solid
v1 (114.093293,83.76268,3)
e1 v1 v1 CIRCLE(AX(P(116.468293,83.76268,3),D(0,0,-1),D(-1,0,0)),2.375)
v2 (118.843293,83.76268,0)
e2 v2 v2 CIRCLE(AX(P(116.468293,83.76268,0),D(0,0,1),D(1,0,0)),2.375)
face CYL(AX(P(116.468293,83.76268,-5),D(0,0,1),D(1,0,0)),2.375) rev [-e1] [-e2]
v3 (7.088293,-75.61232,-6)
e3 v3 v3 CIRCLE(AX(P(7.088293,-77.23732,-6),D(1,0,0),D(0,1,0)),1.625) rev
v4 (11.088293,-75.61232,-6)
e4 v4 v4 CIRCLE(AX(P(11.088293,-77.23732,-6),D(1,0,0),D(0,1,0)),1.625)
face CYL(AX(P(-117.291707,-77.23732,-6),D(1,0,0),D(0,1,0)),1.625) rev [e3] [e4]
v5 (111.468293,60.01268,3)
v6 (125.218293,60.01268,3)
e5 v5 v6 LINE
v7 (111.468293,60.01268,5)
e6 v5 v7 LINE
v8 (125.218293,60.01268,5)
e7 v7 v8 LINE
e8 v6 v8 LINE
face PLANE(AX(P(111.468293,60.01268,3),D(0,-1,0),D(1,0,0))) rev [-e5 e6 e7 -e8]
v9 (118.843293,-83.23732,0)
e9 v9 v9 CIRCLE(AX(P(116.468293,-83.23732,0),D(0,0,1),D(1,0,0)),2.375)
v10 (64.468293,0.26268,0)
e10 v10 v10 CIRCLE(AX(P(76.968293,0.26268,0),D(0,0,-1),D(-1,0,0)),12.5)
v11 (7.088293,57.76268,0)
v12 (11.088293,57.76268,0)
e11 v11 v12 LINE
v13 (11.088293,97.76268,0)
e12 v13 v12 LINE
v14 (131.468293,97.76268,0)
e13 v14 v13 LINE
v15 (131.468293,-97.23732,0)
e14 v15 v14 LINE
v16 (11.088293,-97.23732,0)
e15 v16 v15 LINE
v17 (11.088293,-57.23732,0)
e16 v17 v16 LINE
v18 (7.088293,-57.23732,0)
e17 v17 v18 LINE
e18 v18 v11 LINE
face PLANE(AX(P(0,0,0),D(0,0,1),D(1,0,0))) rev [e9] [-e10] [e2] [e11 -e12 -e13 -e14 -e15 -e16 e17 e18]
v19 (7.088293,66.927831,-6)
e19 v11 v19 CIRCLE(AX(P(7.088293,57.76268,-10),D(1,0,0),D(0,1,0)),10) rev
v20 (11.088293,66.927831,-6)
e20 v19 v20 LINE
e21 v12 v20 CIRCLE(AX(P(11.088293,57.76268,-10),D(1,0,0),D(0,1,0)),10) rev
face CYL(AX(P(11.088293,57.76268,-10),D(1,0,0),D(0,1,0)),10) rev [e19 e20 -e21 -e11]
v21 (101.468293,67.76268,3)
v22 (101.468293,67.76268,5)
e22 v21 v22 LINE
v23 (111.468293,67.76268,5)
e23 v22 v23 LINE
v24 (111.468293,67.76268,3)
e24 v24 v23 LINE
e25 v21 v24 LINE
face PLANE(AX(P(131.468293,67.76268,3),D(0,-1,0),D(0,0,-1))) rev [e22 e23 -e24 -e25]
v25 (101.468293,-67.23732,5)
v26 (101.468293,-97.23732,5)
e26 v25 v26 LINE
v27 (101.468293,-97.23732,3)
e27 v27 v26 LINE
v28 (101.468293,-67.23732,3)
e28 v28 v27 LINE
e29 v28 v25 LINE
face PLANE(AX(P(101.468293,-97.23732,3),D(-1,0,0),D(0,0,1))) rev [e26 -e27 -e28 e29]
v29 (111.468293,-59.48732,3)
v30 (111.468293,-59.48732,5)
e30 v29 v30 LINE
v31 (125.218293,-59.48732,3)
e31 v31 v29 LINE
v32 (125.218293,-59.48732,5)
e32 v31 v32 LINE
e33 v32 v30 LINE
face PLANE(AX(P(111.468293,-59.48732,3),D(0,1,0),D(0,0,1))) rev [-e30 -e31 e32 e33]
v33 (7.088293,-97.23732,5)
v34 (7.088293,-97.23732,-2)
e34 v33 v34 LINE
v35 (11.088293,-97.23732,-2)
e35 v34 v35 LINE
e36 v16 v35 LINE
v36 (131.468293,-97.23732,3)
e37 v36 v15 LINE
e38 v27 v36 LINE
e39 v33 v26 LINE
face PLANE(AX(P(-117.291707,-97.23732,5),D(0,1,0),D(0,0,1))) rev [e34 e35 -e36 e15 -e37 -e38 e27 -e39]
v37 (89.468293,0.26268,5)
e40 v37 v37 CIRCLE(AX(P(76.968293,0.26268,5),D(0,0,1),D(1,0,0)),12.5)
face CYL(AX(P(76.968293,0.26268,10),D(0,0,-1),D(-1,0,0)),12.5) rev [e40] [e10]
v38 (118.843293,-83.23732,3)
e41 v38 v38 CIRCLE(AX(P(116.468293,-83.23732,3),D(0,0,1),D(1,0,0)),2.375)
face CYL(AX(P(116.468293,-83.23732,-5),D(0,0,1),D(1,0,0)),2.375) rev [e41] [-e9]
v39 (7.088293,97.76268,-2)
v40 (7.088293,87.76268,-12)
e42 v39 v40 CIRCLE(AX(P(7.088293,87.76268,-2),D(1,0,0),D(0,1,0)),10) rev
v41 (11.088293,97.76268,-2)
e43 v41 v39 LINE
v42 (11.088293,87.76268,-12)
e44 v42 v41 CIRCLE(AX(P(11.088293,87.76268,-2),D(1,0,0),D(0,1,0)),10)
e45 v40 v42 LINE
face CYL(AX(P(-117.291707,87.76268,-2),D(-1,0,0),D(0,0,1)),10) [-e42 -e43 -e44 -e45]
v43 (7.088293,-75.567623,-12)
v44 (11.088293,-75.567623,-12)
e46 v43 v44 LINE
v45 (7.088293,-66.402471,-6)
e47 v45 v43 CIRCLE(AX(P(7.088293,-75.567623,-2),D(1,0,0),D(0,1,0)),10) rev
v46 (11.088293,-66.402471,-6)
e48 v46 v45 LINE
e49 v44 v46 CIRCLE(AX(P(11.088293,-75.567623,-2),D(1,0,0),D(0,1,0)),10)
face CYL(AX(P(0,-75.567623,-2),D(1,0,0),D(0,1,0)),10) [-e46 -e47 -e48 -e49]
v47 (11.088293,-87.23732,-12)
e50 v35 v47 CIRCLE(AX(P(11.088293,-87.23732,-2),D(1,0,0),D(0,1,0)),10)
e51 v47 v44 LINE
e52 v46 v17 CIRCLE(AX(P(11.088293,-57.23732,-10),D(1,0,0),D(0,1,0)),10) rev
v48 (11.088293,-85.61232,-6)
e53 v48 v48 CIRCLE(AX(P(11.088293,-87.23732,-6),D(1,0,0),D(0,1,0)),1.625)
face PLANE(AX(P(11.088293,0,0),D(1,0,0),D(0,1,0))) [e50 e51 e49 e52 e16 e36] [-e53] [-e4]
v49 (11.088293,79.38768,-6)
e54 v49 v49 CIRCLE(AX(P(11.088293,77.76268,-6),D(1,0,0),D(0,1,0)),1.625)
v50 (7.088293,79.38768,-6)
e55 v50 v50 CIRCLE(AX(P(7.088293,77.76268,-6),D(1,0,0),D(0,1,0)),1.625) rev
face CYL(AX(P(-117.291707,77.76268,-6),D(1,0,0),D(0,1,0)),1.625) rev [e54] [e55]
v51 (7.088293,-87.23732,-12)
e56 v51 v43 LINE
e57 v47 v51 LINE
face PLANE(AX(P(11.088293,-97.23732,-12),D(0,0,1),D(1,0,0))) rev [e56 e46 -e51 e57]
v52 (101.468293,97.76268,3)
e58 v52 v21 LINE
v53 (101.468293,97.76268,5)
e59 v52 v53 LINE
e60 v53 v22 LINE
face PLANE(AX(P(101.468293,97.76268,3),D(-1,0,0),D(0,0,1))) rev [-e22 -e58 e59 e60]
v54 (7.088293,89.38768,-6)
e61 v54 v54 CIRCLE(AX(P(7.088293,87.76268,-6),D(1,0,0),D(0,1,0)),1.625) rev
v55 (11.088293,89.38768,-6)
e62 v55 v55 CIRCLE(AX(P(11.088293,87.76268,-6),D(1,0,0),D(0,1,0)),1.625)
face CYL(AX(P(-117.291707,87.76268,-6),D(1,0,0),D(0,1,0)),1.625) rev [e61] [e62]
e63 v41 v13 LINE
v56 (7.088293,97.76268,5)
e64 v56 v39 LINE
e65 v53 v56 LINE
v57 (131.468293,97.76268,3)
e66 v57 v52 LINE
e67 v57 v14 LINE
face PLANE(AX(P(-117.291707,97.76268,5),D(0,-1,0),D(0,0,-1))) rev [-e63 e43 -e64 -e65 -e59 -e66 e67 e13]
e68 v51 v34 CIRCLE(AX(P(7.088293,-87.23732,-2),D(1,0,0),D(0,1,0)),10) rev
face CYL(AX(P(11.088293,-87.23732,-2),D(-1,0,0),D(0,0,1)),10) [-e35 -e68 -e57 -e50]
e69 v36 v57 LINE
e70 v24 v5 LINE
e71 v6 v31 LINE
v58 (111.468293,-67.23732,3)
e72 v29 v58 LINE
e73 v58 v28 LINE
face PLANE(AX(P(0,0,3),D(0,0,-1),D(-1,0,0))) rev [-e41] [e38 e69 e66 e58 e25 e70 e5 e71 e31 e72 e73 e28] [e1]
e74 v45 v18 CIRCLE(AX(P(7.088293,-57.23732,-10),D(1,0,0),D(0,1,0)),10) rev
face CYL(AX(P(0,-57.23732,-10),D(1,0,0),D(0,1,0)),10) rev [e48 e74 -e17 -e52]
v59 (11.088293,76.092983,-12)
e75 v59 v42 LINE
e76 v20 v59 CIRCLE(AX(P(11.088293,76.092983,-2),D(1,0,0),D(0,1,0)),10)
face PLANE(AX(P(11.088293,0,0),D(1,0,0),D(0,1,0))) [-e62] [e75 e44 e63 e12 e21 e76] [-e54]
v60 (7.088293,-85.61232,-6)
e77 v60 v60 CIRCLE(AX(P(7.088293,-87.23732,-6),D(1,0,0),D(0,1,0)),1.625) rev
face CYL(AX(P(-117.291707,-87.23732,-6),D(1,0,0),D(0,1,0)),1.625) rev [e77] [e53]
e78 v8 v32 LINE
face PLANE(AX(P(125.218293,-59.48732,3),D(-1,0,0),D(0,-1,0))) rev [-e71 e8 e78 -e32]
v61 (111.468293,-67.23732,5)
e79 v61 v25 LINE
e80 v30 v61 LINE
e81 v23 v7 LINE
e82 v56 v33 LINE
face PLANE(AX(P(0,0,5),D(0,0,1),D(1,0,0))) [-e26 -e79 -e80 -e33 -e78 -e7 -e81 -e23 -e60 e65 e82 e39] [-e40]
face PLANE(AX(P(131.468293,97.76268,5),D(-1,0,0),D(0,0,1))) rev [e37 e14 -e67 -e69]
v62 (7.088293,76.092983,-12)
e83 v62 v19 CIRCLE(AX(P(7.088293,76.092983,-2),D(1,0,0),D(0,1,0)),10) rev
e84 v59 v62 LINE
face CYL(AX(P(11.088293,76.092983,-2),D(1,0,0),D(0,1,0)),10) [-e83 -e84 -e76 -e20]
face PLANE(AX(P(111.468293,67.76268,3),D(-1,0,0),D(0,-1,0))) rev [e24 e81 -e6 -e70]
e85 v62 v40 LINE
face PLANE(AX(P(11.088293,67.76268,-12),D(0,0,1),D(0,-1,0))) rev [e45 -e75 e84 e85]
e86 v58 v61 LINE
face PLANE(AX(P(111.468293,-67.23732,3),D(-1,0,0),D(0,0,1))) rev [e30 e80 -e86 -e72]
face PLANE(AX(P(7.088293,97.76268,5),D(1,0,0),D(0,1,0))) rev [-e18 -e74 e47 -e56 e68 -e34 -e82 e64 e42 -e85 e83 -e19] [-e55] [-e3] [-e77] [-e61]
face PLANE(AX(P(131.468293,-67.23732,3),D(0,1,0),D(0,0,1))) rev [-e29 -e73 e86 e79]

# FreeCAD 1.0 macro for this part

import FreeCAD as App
import Part
import Sketcher

V = App.Vector


def edges_at(feature, points):
    """Names of the edges that pass closest to the given points."""
    edges = feature.Shape.Edges
    near = lambda p: min(range(len(edges)), key=lambda i: edges[i].distToShape(Part.Vertex(*p))[0])
    return sorted({f"Edge{near(p) + 1}" for p in points})

doc = App.newDocument("Part")
params = doc.addObject("Spreadsheet::Sheet", "Params")
for row, (alias, value) in enumerate([
    ("sketch1_height", "195 mm"),
    ("sketch1_width", "248.76 mm"),
    ("pad1_length", "5 mm"),
    ("sketch2_width", "48 mm"),
    ("sketch2_width2", "30 mm"),
    ("pocket1_length", "2 mm"),
    ("sketch3_diameter", "4.75 mm"),
    ("pocket2_length", "10 mm"),
    ("sketch4_diameter", "80 mm"),
    ("pad2_length", "206 mm"),
    ("sketch5_diameter", "25 mm"),
    ("pocket3_length", "10 mm"),
    ("sketch6_width", "30 mm"),
    ("sketch6_height", "12 mm"),
    ("pad3_length", "8 mm"),
    ("fillet_radius", "10 mm"),
    ("fillet2_radius", "10 mm"),
    ("fillet3_radius", "10 mm"),
    ("sketch7_diameter", "3.25 mm"),
    ("sketch8_width", "20 mm"),
    ("sketch8_height", "135 mm"),
    ("sketch8_height2", "119.5 mm"),
    ("sketch8_width2", "13.75 mm"),
    ("pocket5_length", "2 mm"),
    ("sketch9_diameter", "3.5 mm"),
    ("pocket6_length", "20 mm"),
    ("sketch10_height", "195 mm"),
    ("sketch10_width", "124.38 mm"),
], start=1):
    params.set(f"A{row}", alias)
    params.set(f"B{row}", "=" + value)
    params.setAlias(f"B{row}", alias)

body = doc.addObject("PartDesign::Body", "Body")

# Sketch on XY plane
sketch1 = body.newObject("Sketcher::SketchObject", "Sketch")
sketch1.AttachmentSupport = (doc.getObject("XY_Plane"), [""])
sketch1.MapMode = "FlatFace"
sketch1.addGeometry(Part.LineSegment(V(-117.291707, 97.76268, 0), V(-117.291707, -97.23732, 0)), False)
sketch1.addGeometry(Part.LineSegment(V(-117.291707, -97.23732, 0), V(131.468293, -97.23732, 0)), False)
sketch1.addGeometry(Part.LineSegment(V(131.468293, -97.23732, 0), V(131.468293, 97.76268, 0)), False)
sketch1.addGeometry(Part.LineSegment(V(131.468293, 97.76268, 0), V(-117.291707, 97.76268, 0)), False)
sketch1.addConstraint(Sketcher.Constraint("Coincident", 0, 2, 1, 1))
sketch1.addConstraint(Sketcher.Constraint("Coincident", 1, 2, 2, 1))
sketch1.addConstraint(Sketcher.Constraint("Coincident", 2, 2, 3, 1))
sketch1.addConstraint(Sketcher.Constraint("Coincident", 3, 2, 0, 1))
sketch1.addConstraint(Sketcher.Constraint("Vertical", 0))
sketch1.addConstraint(Sketcher.Constraint("Horizontal", 1))
sketch1.addConstraint(Sketcher.Constraint("Vertical", 2))
sketch1.addConstraint(Sketcher.Constraint("Horizontal", 3))
sketch1.addConstraint(Sketcher.Constraint("DistanceY", 0, 2, 0, 1, 195.0))
sketch1.addConstraint(Sketcher.Constraint("DistanceX", 1, 1, 1, 2, 248.76))
sketch1.addConstraint(Sketcher.Constraint("DistanceY", 0, 2, -1, 1, 97.23732))
sketch1.addConstraint(Sketcher.Constraint("DistanceX", 0, 2, -1, 1, 117.291707))
sketch1.setExpression("Constraints[8]", "Params.sketch1_height")
sketch1.setExpression("Constraints[9]", "Params.sketch1_width")
pad1 = body.newObject("PartDesign::Pad", "Pad")
pad1.Profile = sketch1
pad1.setExpression("Length", "Params.pad1_length")

# Sketch on XY plane
sketch2 = body.newObject("Sketcher::SketchObject", "Sketch001")
sketch2.AttachmentSupport = (doc.getObject("XY_Plane"), [""])
sketch2.MapMode = "FlatFace"
sketch2.AttachmentOffset = App.Placement(V(0, 0, 5), App.Rotation())
sketch2.addGeometry(Part.LineSegment(V(-117.291707, -67.23732, 0), V(-117.291707, -97.23732, 0)), False)
sketch2.addGeometry(Part.LineSegment(V(-117.291707, -97.23732, 0), V(-69.291707, -97.23732, 0)), False)
sketch2.addGeometry(Part.LineSegment(V(-69.291707, -97.23732, 0), V(-69.291707, -67.23732, 0)), False)
sketch2.addGeometry(Part.LineSegment(V(-69.291707, -67.23732, 0), V(-117.291707, -67.23732, 0)), False)
sketch2.addGeometry(Part.LineSegment(V(101.468293, 97.76268, 0), V(101.468293, 67.76268, 0)), False)
sketch2.addGeometry(Part.LineSegment(V(101.468293, 67.76268, 0), V(131.468293, 67.76268, 0)), False)
sketch2.addGeometry(Part.LineSegment(V(131.468293, 67.76268, 0), V(131.468293, 97.76268, 0)), False)
sketch2.addGeometry(Part.LineSegment(V(131.468293, 97.76268, 0), V(101.468293, 97.76268, 0)), False)
sketch2.addGeometry(Part.LineSegment(V(101.468293, -67.23732, 0), V(101.468293, -97.23732, 0)), False)
sketch2.addGeometry(Part.LineSegment(V(101.468293, -97.23732, 0), V(131.468293, -97.23732, 0)), False)
sketch2.addGeometry(Part.LineSegment(V(131.468293, -97.23732, 0), V(131.468293, -67.23732, 0)), False)
sketch2.addGeometry(Part.LineSegment(V(131.468293, -67.23732, 0), V(101.468293, -67.23732, 0)), False)
sketch2.addGeometry(Part.LineSegment(V(-117.291707, 97.76268, 0), V(-117.291707, 67.76268, 0)), False)
sketch2.addGeometry(Part.LineSegment(V(-117.291707, 67.76268, 0), V(-69.291707, 67.76268, 0)), False)
sketch2.addGeometry(Part.LineSegment(V(-69.291707, 67.76268, 0), V(-69.291707, 97.76268, 0)), False)
sketch2.addGeometry(Part.LineSegment(V(-69.291707, 97.76268, 0), V(-117.291707, 97.76268, 0)), False)
sketch2.addConstraint(Sketcher.Constraint("Coincident", 0, 2, 1, 1))
sketch2.addConstraint(Sketcher.Constraint("Coincident", 1, 2, 2, 1))
sketch2.addConstraint(Sketcher.Constraint("Coincident", 2, 2, 3, 1))
sketch2.addConstraint(Sketcher.Constraint("Coincident", 3, 2, 0, 1))
sketch2.addConstraint(Sketcher.Constraint("Coincident", 4, 2, 5, 1))
sketch2.addConstraint(Sketcher.Constraint("Coincident", 5, 2, 6, 1))
sketch2.addConstraint(Sketcher.Constraint("Coincident", 6, 2, 7, 1))
sketch2.addConstraint(Sketcher.Constraint("Coincident", 7, 2, 4, 1))
sketch2.addConstraint(Sketcher.Constraint("Coincident", 8, 2, 9, 1))
sketch2.addConstraint(Sketcher.Constraint("Coincident", 9, 2, 10, 1))
sketch2.addConstraint(Sketcher.Constraint("Coincident", 10, 2, 11, 1))
sketch2.addConstraint(Sketcher.Constraint("Coincident", 11, 2, 8, 1))
sketch2.addConstraint(Sketcher.Constraint("Coincident", 12, 2, 13, 1))
sketch2.addConstraint(Sketcher.Constraint("Coincident", 13, 2, 14, 1))
sketch2.addConstraint(Sketcher.Constraint("Coincident", 14, 2, 15, 1))
sketch2.addConstraint(Sketcher.Constraint("Coincident", 15, 2, 12, 1))
sketch2.addConstraint(Sketcher.Constraint("Vertical", 0))
sketch2.addConstraint(Sketcher.Constraint("Horizontal", 1))
sketch2.addConstraint(Sketcher.Constraint("Vertical", 2))
sketch2.addConstraint(Sketcher.Constraint("Horizontal", 3))
sketch2.addConstraint(Sketcher.Constraint("Vertical", 4))
sketch2.addConstraint(Sketcher.Constraint("Horizontal", 5))
sketch2.addConstraint(Sketcher.Constraint("Vertical", 6))
sketch2.addConstraint(Sketcher.Constraint("Horizontal", 7))
sketch2.addConstraint(Sketcher.Constraint("Vertical", 8))
sketch2.addConstraint(Sketcher.Constraint("Horizontal", 9))
sketch2.addConstraint(Sketcher.Constraint("Vertical", 10))
sketch2.addConstraint(Sketcher.Constraint("Horizontal", 11))
sketch2.addConstraint(Sketcher.Constraint("Vertical", 12))
sketch2.addConstraint(Sketcher.Constraint("Horizontal", 13))
sketch2.addConstraint(Sketcher.Constraint("Vertical", 14))
sketch2.addConstraint(Sketcher.Constraint("Horizontal", 15))
sketch2.addConstraint(Sketcher.Constraint("Horizontal", 1, 2, 8, 2))
sketch2.addConstraint(Sketcher.Constraint("Horizontal", 3, 2, 10, 2))
sketch2.addConstraint(Sketcher.Constraint("Horizontal", 5, 2, 12, 2))
sketch2.addConstraint(Sketcher.Constraint("Horizontal", 7, 2, 14, 2))
sketch2.addConstraint(Sketcher.Constraint("Vertical", 7, 2, 8, 2))
sketch2.addConstraint(Sketcher.Constraint("Vertical", 6, 2, 9, 2))
sketch2.addConstraint(Sketcher.Constraint("Vertical", 3, 2, 12, 2))
sketch2.addConstraint(Sketcher.Constraint("Vertical", 2, 2, 13, 2))
sketch2.addConstraint(Sketcher.Constraint("Equal", 11, 0))
sketch2.addConstraint(Sketcher.Constraint("Equal", 2, 4))
sketch2.addConstraint(Sketcher.Constraint("DistanceX", 1, 1, 1, 2, 48.0))
sketch2.addConstraint(Sketcher.Constraint("DistanceX", 5, 1, 5, 2, 30.0))
sketch2.addConstraint(Sketcher.Constraint("DistanceY", 2, 2, 4, 2, 135.0))
sketch2.addConstraint(Sketcher.Constraint("DistanceX", 2, 2, 4, 2, 170.76))
sketch2.addConstraint(Sketcher.Constraint("DistanceY", 0, 2, -1, 1, 97.23732))
sketch2.addConstraint(Sketcher.Constraint("DistanceX", 0, 2, -1, 1, 117.291707))
sketch2.setExpression("Constraints[42]", "Params.sketch2_width")
sketch2.setExpression("Constraints[43]", "Params.sketch2_width2")
pocket1 = body.newObject("PartDesign::Pocket", "Pocket")
pocket1.Profile = sketch2
pocket1.setExpression("Length", "Params.pocket1_length")

# Sketch on XY plane
sketch3 = body.newObject("Sketcher::SketchObject", "Sketch002")
sketch3.AttachmentSupport = (doc.getObject("XY_Plane"), [""])
sketch3.MapMode = "FlatFace"
sketch3.AttachmentOffset = App.Placement(V(0, 0, 5), App.Rotation())
sketch3.addGeometry(Part.Circle(V(-93.291707, 83.76268, 0), V(0, 0, 1), 2.375), False)
sketch3.addGeometry(Part.Circle(V(-93.291707, -83.23732, 0), V(0, 0, 1), 2.375), False)
sketch3.addGeometry(Part.Circle(V(116.468293, 83.76268, 0), V(0, 0, 1), 2.375), False)
sketch3.addGeometry(Part.Circle(V(116.468293, -83.23732, 0), V(0, 0, 1), 2.375), False)
sketch3.addConstraint(Sketcher.Constraint("Equal", 0, 1))
sketch3.addConstraint(Sketcher.Constraint("Equal", 1, 2))
sketch3.addConstraint(Sketcher.Constraint("Equal", 2, 3))
sketch3.addConstraint(Sketcher.Constraint("Horizontal", 0, 3, 2, 3))
sketch3.addConstraint(Sketcher.Constraint("Horizontal", 1, 3, 3, 3))
sketch3.addConstraint(Sketcher.Constraint("Vertical", 0, 3, 1, 3))
sketch3.addConstraint(Sketcher.Constraint("Vertical", 2, 3, 3, 3))
sketch3.addConstraint(Sketcher.Constraint("Diameter", 0, 4.75))
sketch3.addConstraint(Sketcher.Constraint("DistanceY", 1, 3, 0, 3, 167.0))
sketch3.addConstraint(Sketcher.Constraint("DistanceX", 0, 3, 2, 3, 209.76))
sketch3.addConstraint(Sketcher.Constraint("DistanceY", -1, 1, 0, 3, 83.76268))
sketch3.addConstraint(Sketcher.Constraint("DistanceX", 0, 3, -1, 1, 93.291707))
sketch3.setExpression("Constraints[7]", "Params.sketch3_diameter")
pocket2 = body.newObject("PartDesign::Pocket", "Pocket001")
pocket2.Profile = sketch3
pocket2.setExpression("Length", "Params.pocket2_length")

# Sketch on XY plane
sketch4 = body.newObject("Sketcher::SketchObject", "Sketch003")
sketch4.AttachmentSupport = (doc.getObject("XY_Plane"), [""])
sketch4.MapMode = "FlatFace"
sketch4.addGeometry(Part.Circle(V(-55.101707, 0.26268, 0), V(0, 0, 1), 40), False)
sketch4.addConstraint(Sketcher.Constraint("Diameter", 0, 80.0))
sketch4.addConstraint(Sketcher.Constraint("DistanceY", -1, 1, 0, 3, 0.26268))
sketch4.addConstraint(Sketcher.Constraint("DistanceX", 0, 3, -1, 1, 55.101707))
sketch4.setExpression("Constraints[0]", "Params.sketch4_diameter")
pad2 = body.newObject("PartDesign::Pad", "Pad001")
pad2.Profile = sketch4
pad2.setExpression("Length", "Params.pad2_length")
pad2.Reversed = True

# Sketch on XY plane
sketch5 = body.newObject("Sketcher::SketchObject", "Sketch004")
sketch5.AttachmentSupport = (doc.getObject("XY_Plane"), [""])
sketch5.MapMode = "FlatFace"
sketch5.addGeometry(Part.Circle(V(76.968293, 0.26268, 0), V(0, 0, 1), 12.5), False)
sketch5.addConstraint(Sketcher.Constraint("Diameter", 0, 25.0))
sketch5.addConstraint(Sketcher.Constraint("DistanceY", -1, 1, 0, 3, 0.26268))
sketch5.addConstraint(Sketcher.Constraint("DistanceX", -1, 1, 0, 3, 76.968293))
sketch5.setExpression("Constraints[0]", "Params.sketch5_diameter")
pocket3 = body.newObject("PartDesign::Pocket", "Pocket002")
pocket3.Profile = sketch5
pocket3.setExpression("Length", "Params.pocket3_length")
pocket3.Reversed = True

# Sketch on YZ plane
sketch6 = body.newObject("Sketcher::SketchObject", "Sketch005")
sketch6.AttachmentSupport = (doc.getObject("YZ_Plane"), [""])
sketch6.MapMode = "FlatFace"
sketch6.AttachmentOffset = App.Placement(V(0, 0, 7.088293), App.Rotation())
sketch6.addGeometry(Part.LineSegment(V(97.76268, 0, 0), V(67.76268, 0, 0)), False)
sketch6.addGeometry(Part.LineSegment(V(67.76268, 0, 0), V(67.76268, -12, 0)), False)
sketch6.addGeometry(Part.LineSegment(V(67.76268, -12, 0), V(97.76268, -12, 0)), False)
sketch6.addGeometry(Part.LineSegment(V(97.76268, -12, 0), V(97.76268, 0, 0)), False)
sketch6.addGeometry(Part.LineSegment(V(-67.23732, 0, 0), V(-97.23732, 0, 0)), False)
sketch6.addGeometry(Part.LineSegment(V(-97.23732, 0, 0), V(-97.23732, -12, 0)), False)
sketch6.addGeometry(Part.LineSegment(V(-97.23732, -12, 0), V(-67.23732, -12, 0)), False)
sketch6.addGeometry(Part.LineSegment(V(-67.23732, -12, 0), V(-67.23732, 0, 0)), False)
sketch6.addConstraint(Sketcher.Constraint("Coincident", 0, 2, 1, 1))
sketch6.addConstraint(Sketcher.Constraint("Coincident", 1, 2, 2, 1))
sketch6.addConstraint(Sketcher.Constraint("Coincident", 2, 2, 3, 1))
sketch6.addConstraint(Sketcher.Constraint("Coincident", 3, 2, 0, 1))
sketch6.addConstraint(Sketcher.Constraint("Coincident", 4, 2, 5, 1))
sketch6.addConstraint(Sketcher.Constraint("Coincident", 5, 2, 6, 1))
sketch6.addConstraint(Sketcher.Constraint("Coincident", 6, 2, 7, 1))
sketch6.addConstraint(Sketcher.Constraint("Coincident", 7, 2, 4, 1))
sketch6.addConstraint(Sketcher.Constraint("Horizontal", 0))
sketch6.addConstraint(Sketcher.Constraint("Vertical", 1))
sketch6.addConstraint(Sketcher.Constraint("Horizontal", 2))
sketch6.addConstraint(Sketcher.Constraint("Vertical", 3))
sketch6.addConstraint(Sketcher.Constraint("Horizontal", 4))
sketch6.addConstraint(Sketcher.Constraint("Vertical", 5))
sketch6.addConstraint(Sketcher.Constraint("Horizontal", 6))
sketch6.addConstraint(Sketcher.Constraint("Vertical", 7))
sketch6.addConstraint(Sketcher.Constraint("PointOnObject", 0, 2, -1))
sketch6.addConstraint(Sketcher.Constraint("PointOnObject", 4, 2, -1))
sketch6.addConstraint(Sketcher.Constraint("Horizontal", 2, 2, 5, 2))
sketch6.addConstraint(Sketcher.Constraint("Equal", 2, 4))
sketch6.addConstraint(Sketcher.Constraint("DistanceX", 0, 2, 0, 1, 30.0))
sketch6.addConstraint(Sketcher.Constraint("DistanceY", 1, 2, 1, 1, 12.0))
sketch6.addConstraint(Sketcher.Constraint("DistanceX", 4, 2, 0, 2, 165.0))
sketch6.addConstraint(Sketcher.Constraint("DistanceX", -1, 1, 0, 2, 67.76268))
sketch6.setExpression("Constraints[20]", "Params.sketch6_width")
sketch6.setExpression("Constraints[21]", "Params.sketch6_height")
pad3 = body.newObject("PartDesign::Pad", "Pad002")
pad3.Profile = sketch6
pad3.setExpression("Length", "Params.pad3_length")
pad3.Midplane = True
doc.recompute()

fillet = body.newObject("PartDesign::Fillet", "Fillet")
fillet.Base = (pad3, edges_at(pad3, [(7.088, 67.763, 0), (7.088, -67.237, 0)]))
fillet.setExpression("Radius", "Params.fillet_radius")
doc.recompute()

fillet2 = body.newObject("PartDesign::Fillet", "Fillet001")
fillet2.Base = (fillet, edges_at(fillet, [(7.088, 67.763, -12), (7.088, -67.237, -12)]))
fillet2.setExpression("Radius", "Params.fillet2_radius")
doc.recompute()

fillet3 = body.newObject("PartDesign::Fillet", "Fillet002")
fillet3.Base = (fillet2, edges_at(fillet2, [(7.088, 97.763, -12), (7.088, -97.237, -12)]))
fillet3.setExpression("Radius", "Params.fillet3_radius")

# Sketch on YZ plane
sketch7 = body.newObject("Sketcher::SketchObject", "Sketch006")
sketch7.AttachmentSupport = (doc.getObject("YZ_Plane"), [""])
sketch7.MapMode = "FlatFace"
sketch7.AttachmentOffset = App.Placement(V(0, 0, 11.088293), App.Rotation())
sketch7.addGeometry(Part.Circle(V(87.76268, -6, 0), V(0, 0, 1), 1.625), False)
sketch7.addGeometry(Part.Circle(V(77.76268, -6, 0), V(0, 0, 1), 1.625), False)
sketch7.addGeometry(Part.Circle(V(-77.23732, -6, 0), V(0, 0, 1), 1.625), False)
sketch7.addGeometry(Part.Circle(V(-87.23732, -6, 0), V(0, 0, 1), 1.625), False)
sketch7.addConstraint(Sketcher.Constraint("Equal", 0, 1))
sketch7.addConstraint(Sketcher.Constraint("Equal", 1, 2))
sketch7.addConstraint(Sketcher.Constraint("Equal", 2, 3))
sketch7.addConstraint(Sketcher.Constraint("Horizontal", 0, 3, 1, 3))
sketch7.addConstraint(Sketcher.Constraint("Horizontal", 1, 3, 2, 3))
sketch7.addConstraint(Sketcher.Constraint("Horizontal", 2, 3, 3, 3))
sketch7.addConstraint(Sketcher.Constraint("Diameter", 0, 3.25))
sketch7.addConstraint(Sketcher.Constraint("DistanceY", 0, 3, -1, 1, 6.0))
sketch7.addConstraint(Sketcher.Constraint("DistanceX", 1, 3, 0, 3, 10.0))
sketch7.addConstraint(Sketcher.Constraint("DistanceX", 2, 3, 1, 3, 155.0))
sketch7.addConstraint(Sketcher.Constraint("DistanceX", 3, 3, 2, 3, 10.0))
sketch7.addConstraint(Sketcher.Constraint("DistanceX", -1, 1, 0, 3, 87.76268))
sketch7.setExpression("Constraints[6]", "Params.sketch7_diameter")
pocket4 = body.newObject("PartDesign::Pocket", "Pocket003")
pocket4.Profile = sketch7
pocket4.Type = "ThroughAll"
pocket4.Midplane = True

# Sketch on XY plane
sketch8 = body.newObject("Sketcher::SketchObject", "Sketch007")
sketch8.AttachmentSupport = (doc.getObject("XY_Plane"), [""])
sketch8.MapMode = "FlatFace"
sketch8.AttachmentOffset = App.Placement(V(0, 0, 5), App.Rotation())
sketch8.addGeometry(Part.LineSegment(V(131.468293, 67.76268, 0), V(111.468293, 67.76268, 0)), False)
sketch8.addGeometry(Part.LineSegment(V(111.468293, 67.76268, 0), V(111.468293, 60.01268, 0)), False)
sketch8.addGeometry(Part.LineSegment(V(111.468293, 60.01268, 0), V(125.218293, 60.01268, 0)), False)
sketch8.addGeometry(Part.LineSegment(V(125.218293, 60.01268, 0), V(125.218293, -59.48732, 0)), False)
sketch8.addGeometry(Part.LineSegment(V(125.218293, -59.48732, 0), V(111.468293, -59.48732, 0)), False)
sketch8.addGeometry(Part.LineSegment(V(111.468293, -59.48732, 0), V(111.468293, -67.23732, 0)), False)
sketch8.addGeometry(Part.LineSegment(V(111.468293, -67.23732, 0), V(131.468293, -67.23732, 0)), False)
sketch8.addGeometry(Part.LineSegment(V(131.468293, -67.23732, 0), V(131.468293, 67.76268, 0)), False)
sketch8.addConstraint(Sketcher.Constraint("Coincident", 0, 2, 1, 1))
sketch8.addConstraint(Sketcher.Constraint("Coincident", 1, 2, 2, 1))
sketch8.addConstraint(Sketcher.Constraint("Coincident", 2, 2, 3, 1))
sketch8.addConstraint(Sketcher.Constraint("Coincident", 3, 2, 4, 1))
sketch8.addConstraint(Sketcher.Constraint("Coincident", 4, 2, 5, 1))
sketch8.addConstraint(Sketcher.Constraint("Coincident", 5, 2, 6, 1))
sketch8.addConstraint(Sketcher.Constraint("Coincident", 6, 2, 7, 1))
sketch8.addConstraint(Sketcher.Constraint("Coincident", 7, 2, 0, 1))
sketch8.addConstraint(Sketcher.Constraint("Horizontal", 0))
sketch8.addConstraint(Sketcher.Constraint("Vertical", 1))
sketch8.addConstraint(Sketcher.Constraint("Horizontal", 2))
sketch8.addConstraint(Sketcher.Constraint("Vertical", 3))
sketch8.addConstraint(Sketcher.Constraint("Horizontal", 4))
sketch8.addConstraint(Sketcher.Constraint("Vertical", 5))
sketch8.addConstraint(Sketcher.Constraint("Horizontal", 6))
sketch8.addConstraint(Sketcher.Constraint("Vertical", 7))
sketch8.addConstraint(Sketcher.Constraint("Vertical", 1, 2, 4, 2))
sketch8.addConstraint(Sketcher.Constraint("Equal", 1, 5))
sketch8.addConstraint(Sketcher.Constraint("DistanceX", 0, 2, 0, 1, 20.0))
sketch8.addConstraint(Sketcher.Constraint("DistanceY", 7, 1, 7, 2, 135.0))
sketch8.addConstraint(Sketcher.Constraint("DistanceY", 3, 2, 3, 1, 119.5))
sketch8.addConstraint(Sketcher.Constraint("DistanceX", 2, 1, 2, 2, 13.75))
sketch8.addConstraint(Sketcher.Constraint("DistanceY", -1, 1, 0, 2, 67.76268))
sketch8.addConstraint(Sketcher.Constraint("DistanceX", -1, 1, 0, 2, 111.468293))
sketch8.setExpression("Constraints[18]", "Params.sketch8_width")
sketch8.setExpression("Constraints[19]", "Params.sketch8_height")
sketch8.setExpression("Constraints[20]", "Params.sketch8_height2")
sketch8.setExpression("Constraints[21]", "Params.sketch8_width2")
pocket5 = body.newObject("PartDesign::Pocket", "Pocket004")
pocket5.Profile = sketch8
pocket5.setExpression("Length", "Params.pocket5_length")

# Sketch on XY plane
sketch9 = body.newObject("Sketcher::SketchObject", "Sketch008")
sketch9.AttachmentSupport = (doc.getObject("XY_Plane"), [""])
sketch9.MapMode = "FlatFace"
sketch9.AttachmentOffset = App.Placement(V(0, 0, 5), App.Rotation())
sketch9.addGeometry(Part.Circle(V(-55.101707, 20.26268, 0), V(0, 0, 1), 1.75), False)
sketch9.addGeometry(Part.Circle(V(-35.101707, 0.26268, 0), V(0, 0, 1), 1.75), False)
sketch9.addGeometry(Part.Circle(V(-55.101707, -19.73732, 0), V(0, 0, 1), 1.75), False)
sketch9.addGeometry(Part.Circle(V(-75.101707, 0.26268, 0), V(0, 0, 1), 1.75), False)
sketch9.addConstraint(Sketcher.Constraint("Equal", 0, 1))
sketch9.addConstraint(Sketcher.Constraint("Equal", 1, 2))
sketch9.addConstraint(Sketcher.Constraint("Equal", 2, 3))
sketch9.addConstraint(Sketcher.Constraint("Horizontal", 1, 3, 3, 3))
sketch9.addConstraint(Sketcher.Constraint("Vertical", 0, 3, 2, 3))
sketch9.addConstraint(Sketcher.Constraint("Diameter", 0, 3.5))
sketch9.addConstraint(Sketcher.Constraint("DistanceX", 0, 3, 1, 3, 20.0))
sketch9.addConstraint(Sketcher.Constraint("DistanceY", 1, 3, 0, 3, 20.0))
sketch9.addConstraint(Sketcher.Constraint("DistanceY", 2, 3, 1, 3, 20.0))
sketch9.addConstraint(Sketcher.Constraint("DistanceX", 3, 3, 0, 3, 20.0))
sketch9.addConstraint(Sketcher.Constraint("DistanceY", -1, 1, 0, 3, 20.26268))
sketch9.addConstraint(Sketcher.Constraint("DistanceX", 0, 3, -1, 1, 55.101707))
sketch9.setExpression("Constraints[5]", "Params.sketch9_diameter")
pocket6 = body.newObject("PartDesign::Pocket", "Pocket005")
pocket6.Profile = sketch9
pocket6.setExpression("Length", "Params.pocket6_length")

# Sketch on XY plane
sketch10 = body.newObject("Sketcher::SketchObject", "Sketch009")
sketch10.AttachmentSupport = (doc.getObject("XY_Plane"), [""])
sketch10.MapMode = "FlatFace"
sketch10.addGeometry(Part.LineSegment(V(7.088293, 97.76268, 0), V(7.088293, -97.23732, 0)), False)
sketch10.addGeometry(Part.LineSegment(V(7.088293, -97.23732, 0), V(-117.291707, -97.23732, 0)), False)
sketch10.addGeometry(Part.LineSegment(V(-117.291707, -97.23732, 0), V(-117.291707, 97.76268, 0)), False)
sketch10.addGeometry(Part.LineSegment(V(-117.291707, 97.76268, 0), V(7.088293, 97.76268, 0)), False)
sketch10.addConstraint(Sketcher.Constraint("Coincident", 0, 2, 1, 1))
sketch10.addConstraint(Sketcher.Constraint("Coincident", 1, 2, 2, 1))
sketch10.addConstraint(Sketcher.Constraint("Coincident", 2, 2, 3, 1))
sketch10.addConstraint(Sketcher.Constraint("Coincident", 3, 2, 0, 1))
sketch10.addConstraint(Sketcher.Constraint("Vertical", 0))
sketch10.addConstraint(Sketcher.Constraint("Horizontal", 1))
sketch10.addConstraint(Sketcher.Constraint("Vertical", 2))
sketch10.addConstraint(Sketcher.Constraint("Horizontal", 3))
sketch10.addConstraint(Sketcher.Constraint("DistanceY", 0, 2, 0, 1, 195.0))
sketch10.addConstraint(Sketcher.Constraint("DistanceX", 1, 2, 1, 1, 124.38))
sketch10.addConstraint(Sketcher.Constraint("DistanceY", 0, 2, -1, 1, 97.23732))
sketch10.addConstraint(Sketcher.Constraint("DistanceX", -1, 1, 0, 2, 7.088293))
sketch10.setExpression("Constraints[8]", "Params.sketch10_height")
sketch10.setExpression("Constraints[9]", "Params.sketch10_width")
pocket7 = body.newObject("PartDesign::Pocket", "Pocket006")
pocket7.Profile = sketch10
pocket7.Type = "ThroughAll"
pocket7.Midplane = True

doc.recompute()
